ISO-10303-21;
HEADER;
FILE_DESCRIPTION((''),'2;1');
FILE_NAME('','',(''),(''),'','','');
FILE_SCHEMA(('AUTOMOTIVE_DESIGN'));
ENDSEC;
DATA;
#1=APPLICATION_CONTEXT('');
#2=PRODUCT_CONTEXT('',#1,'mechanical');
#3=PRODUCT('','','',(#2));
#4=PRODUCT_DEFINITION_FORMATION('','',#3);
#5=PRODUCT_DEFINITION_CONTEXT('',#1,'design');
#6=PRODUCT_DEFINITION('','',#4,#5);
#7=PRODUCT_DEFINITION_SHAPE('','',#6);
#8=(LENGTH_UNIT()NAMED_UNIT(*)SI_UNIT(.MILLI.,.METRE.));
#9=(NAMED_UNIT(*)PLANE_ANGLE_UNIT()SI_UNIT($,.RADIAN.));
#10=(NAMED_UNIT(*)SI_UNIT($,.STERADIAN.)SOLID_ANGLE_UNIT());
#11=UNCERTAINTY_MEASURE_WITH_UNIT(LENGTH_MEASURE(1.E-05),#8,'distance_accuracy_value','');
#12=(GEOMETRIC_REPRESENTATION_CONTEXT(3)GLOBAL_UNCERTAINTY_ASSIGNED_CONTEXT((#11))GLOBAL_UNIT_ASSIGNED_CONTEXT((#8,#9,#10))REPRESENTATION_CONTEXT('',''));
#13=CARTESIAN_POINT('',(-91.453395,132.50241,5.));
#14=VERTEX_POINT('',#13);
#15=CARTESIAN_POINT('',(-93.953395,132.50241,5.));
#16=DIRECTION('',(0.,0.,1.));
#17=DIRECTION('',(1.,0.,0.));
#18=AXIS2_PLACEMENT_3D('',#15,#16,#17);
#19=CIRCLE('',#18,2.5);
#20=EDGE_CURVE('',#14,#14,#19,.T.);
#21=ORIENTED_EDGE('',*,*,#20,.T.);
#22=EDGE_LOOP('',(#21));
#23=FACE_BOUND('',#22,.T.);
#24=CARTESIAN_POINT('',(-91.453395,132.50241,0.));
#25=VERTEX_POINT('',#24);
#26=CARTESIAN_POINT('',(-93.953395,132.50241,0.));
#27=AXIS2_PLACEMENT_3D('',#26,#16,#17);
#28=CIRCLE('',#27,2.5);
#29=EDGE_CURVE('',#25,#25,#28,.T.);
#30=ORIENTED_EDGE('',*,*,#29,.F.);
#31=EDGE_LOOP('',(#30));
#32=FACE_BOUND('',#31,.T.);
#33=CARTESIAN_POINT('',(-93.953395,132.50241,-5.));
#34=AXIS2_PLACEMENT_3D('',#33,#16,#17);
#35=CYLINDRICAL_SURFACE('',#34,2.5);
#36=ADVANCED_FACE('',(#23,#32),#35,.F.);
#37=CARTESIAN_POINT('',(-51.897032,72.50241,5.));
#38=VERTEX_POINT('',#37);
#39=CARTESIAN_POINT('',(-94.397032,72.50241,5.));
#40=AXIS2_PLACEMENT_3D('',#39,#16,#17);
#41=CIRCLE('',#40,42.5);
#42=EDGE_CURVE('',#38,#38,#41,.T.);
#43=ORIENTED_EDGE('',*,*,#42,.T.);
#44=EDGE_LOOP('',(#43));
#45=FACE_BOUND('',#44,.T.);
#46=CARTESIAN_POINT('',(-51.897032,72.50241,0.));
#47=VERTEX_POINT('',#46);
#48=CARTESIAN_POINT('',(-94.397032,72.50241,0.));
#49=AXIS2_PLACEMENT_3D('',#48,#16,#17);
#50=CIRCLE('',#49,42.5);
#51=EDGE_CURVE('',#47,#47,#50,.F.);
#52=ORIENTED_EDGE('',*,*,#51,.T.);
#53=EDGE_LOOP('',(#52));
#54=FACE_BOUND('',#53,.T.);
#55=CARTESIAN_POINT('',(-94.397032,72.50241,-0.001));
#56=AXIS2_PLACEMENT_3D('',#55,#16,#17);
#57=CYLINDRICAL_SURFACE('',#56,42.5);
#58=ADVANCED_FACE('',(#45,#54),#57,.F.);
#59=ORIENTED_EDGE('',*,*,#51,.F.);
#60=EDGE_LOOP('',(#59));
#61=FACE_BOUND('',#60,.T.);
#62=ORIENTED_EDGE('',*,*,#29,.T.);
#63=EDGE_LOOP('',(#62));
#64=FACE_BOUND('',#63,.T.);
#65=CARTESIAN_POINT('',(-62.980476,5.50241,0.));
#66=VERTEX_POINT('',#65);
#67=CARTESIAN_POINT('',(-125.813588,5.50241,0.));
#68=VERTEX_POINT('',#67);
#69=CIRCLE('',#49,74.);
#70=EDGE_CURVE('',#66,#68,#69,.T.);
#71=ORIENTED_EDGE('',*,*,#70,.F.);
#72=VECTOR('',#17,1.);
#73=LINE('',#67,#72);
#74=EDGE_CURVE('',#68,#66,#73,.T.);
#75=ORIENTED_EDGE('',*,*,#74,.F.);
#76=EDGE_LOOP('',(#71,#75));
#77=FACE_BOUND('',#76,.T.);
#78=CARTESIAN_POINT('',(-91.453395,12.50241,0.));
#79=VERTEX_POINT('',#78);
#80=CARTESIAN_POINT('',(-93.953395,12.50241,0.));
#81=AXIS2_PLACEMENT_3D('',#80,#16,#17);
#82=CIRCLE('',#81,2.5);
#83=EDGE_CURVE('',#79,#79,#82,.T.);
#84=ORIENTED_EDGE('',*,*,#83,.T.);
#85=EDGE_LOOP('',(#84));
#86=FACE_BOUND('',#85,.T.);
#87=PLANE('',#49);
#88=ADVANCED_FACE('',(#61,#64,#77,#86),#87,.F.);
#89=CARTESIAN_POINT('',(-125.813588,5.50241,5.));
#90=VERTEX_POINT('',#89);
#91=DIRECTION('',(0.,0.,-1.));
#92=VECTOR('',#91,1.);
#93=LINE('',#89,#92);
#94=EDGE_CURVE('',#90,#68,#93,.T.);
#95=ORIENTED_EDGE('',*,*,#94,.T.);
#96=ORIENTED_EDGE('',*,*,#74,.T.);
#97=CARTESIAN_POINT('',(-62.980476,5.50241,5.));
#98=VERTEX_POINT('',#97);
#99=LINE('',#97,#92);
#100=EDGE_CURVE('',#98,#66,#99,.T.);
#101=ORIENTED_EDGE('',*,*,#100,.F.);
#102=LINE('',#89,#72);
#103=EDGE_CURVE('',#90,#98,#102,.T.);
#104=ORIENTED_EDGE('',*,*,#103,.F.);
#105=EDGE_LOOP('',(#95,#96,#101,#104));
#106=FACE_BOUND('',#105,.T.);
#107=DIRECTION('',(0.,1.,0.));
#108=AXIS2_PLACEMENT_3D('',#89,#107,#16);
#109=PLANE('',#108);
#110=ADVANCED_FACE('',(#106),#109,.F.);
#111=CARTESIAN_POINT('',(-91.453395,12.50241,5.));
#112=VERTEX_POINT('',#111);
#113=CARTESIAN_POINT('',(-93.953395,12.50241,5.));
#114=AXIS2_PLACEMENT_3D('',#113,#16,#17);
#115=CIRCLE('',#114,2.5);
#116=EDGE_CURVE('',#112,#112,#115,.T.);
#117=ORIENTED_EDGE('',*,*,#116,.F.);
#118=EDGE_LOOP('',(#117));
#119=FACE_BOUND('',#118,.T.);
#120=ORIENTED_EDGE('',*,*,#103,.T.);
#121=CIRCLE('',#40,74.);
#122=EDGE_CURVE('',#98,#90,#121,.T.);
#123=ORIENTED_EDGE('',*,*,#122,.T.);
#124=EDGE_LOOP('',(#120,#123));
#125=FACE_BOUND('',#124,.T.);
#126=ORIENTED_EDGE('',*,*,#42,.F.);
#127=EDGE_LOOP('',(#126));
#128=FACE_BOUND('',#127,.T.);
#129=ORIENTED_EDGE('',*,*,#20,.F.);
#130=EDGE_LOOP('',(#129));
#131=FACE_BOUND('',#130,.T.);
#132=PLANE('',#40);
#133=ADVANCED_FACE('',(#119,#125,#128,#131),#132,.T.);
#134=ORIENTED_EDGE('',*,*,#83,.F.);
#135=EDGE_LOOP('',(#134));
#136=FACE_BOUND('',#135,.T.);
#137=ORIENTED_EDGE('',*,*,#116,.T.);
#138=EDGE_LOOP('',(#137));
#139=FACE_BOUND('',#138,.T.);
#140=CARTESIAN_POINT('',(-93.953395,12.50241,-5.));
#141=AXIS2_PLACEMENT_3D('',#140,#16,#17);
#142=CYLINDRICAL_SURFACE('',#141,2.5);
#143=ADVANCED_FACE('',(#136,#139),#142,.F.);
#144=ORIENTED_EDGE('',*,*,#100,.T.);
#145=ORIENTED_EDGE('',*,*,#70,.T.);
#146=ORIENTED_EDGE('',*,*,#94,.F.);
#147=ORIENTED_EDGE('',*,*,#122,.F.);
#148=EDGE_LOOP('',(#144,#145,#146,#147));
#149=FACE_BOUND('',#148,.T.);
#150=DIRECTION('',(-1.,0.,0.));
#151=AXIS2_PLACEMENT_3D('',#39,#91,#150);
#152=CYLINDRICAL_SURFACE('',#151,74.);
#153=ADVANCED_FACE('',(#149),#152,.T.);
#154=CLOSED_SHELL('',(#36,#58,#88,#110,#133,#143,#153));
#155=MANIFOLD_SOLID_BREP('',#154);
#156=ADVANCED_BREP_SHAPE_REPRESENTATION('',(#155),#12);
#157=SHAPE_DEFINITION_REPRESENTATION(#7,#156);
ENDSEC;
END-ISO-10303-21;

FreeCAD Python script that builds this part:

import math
import FreeCAD as App
import Part
import Sketcher

V = App.Vector

doc = App.newDocument("Part")
body = doc.addObject("PartDesign::Body", "Body")

# Sketch on XY plane
sketch1 = body.newObject("Sketcher::SketchObject", "Sketch")
sketch1.AttachmentSupport = (doc.getObject("XY_Plane"), [""])
sketch1.MapMode = "FlatFace"
sketch1.addGeometry([
    Part.LineSegment(V(-126, 6, 0), V(-63, 6, 0)),
    Part.ArcOfCircle(Part.Circle(V(-94, 73, 0), V(0, 0, 1), 74), math.radians(-65), math.radians(245)),
], False)
sketch1.addConstraint([
    Sketcher.Constraint("Coincident", 0, 1, 1, 2),
    Sketcher.Constraint("Coincident", 1, 1, 0, 2),
    Sketcher.Constraint("Horizontal", 0),
    Sketcher.Constraint("Radius", 1, 74.0),
    Sketcher.Constraint("DistanceY", 0, 1, 1, 3, 67.0),
    Sketcher.Constraint("DistanceX", 1, 3, -1, 1, 94.397032),
    Sketcher.Constraint("DistanceY", -1, 1, 1, 3, 72.50241),
])
pad1 = body.newObject("PartDesign::Pad", "Pad")
pad1.Profile = sketch1
pad1.Length = 5

# Sketch on XY plane
sketch2 = body.newObject("Sketcher::SketchObject", "Sketch001")
sketch2.AttachmentSupport = (doc.getObject("XY_Plane"), [""])
sketch2.MapMode = "FlatFace"
sketch2.AttachmentOffset = App.Placement(V(0, 0, 5), App.Rotation())
sketch2.addGeometry([
    Part.Circle(V(-94, 132.5, 0), V(0, 0, 1), 2.5),
    Part.Circle(V(-94, 12.5, 0), V(0, 0, 1), 2.5),
], False)
sketch2.addConstraint([
    Sketcher.Constraint("Equal", 0, 1),
    Sketcher.Constraint("Vertical", 0, 3, 1, 3),
    Sketcher.Constraint("Diameter", 0, 5.0),
    Sketcher.Constraint("DistanceY", 1, 3, 0, 3, 120.0),
    Sketcher.Constraint("DistanceY", -1, 1, 0, 3, 132.50241),
    Sketcher.Constraint("DistanceX", 0, 3, -1, 1, 93.953395),
])
pocket1 = body.newObject("PartDesign::Pocket", "Pocket")
pocket1.Profile = sketch2
pocket1.Length = 10

# Sketch on XY plane
sketch3 = body.newObject("Sketcher::SketchObject", "Sketch002")
sketch3.AttachmentSupport = (doc.getObject("XY_Plane"), [""])
sketch3.MapMode = "FlatFace"
sketch3.AttachmentOffset = App.Placement(V(0, 0, 5), App.Rotation())
sketch3.addGeometry(Part.Circle(V(-94, 73, 0), V(0, 0, 1), 42), False)
sketch3.addConstraint([
    Sketcher.Constraint("Diameter", 0, 85.0),
    Sketcher.Constraint("DistanceX", 0, 3, -1, 1, 94.397032),
    Sketcher.Constraint("DistanceY", -1, 1, 0, 3, 72.50241),
])
pocket2 = body.newObject("PartDesign::Pocket", "Pocket001")
pocket2.Profile = sketch3
pocket2.Type = "UpToFirst"

doc.recompute()
